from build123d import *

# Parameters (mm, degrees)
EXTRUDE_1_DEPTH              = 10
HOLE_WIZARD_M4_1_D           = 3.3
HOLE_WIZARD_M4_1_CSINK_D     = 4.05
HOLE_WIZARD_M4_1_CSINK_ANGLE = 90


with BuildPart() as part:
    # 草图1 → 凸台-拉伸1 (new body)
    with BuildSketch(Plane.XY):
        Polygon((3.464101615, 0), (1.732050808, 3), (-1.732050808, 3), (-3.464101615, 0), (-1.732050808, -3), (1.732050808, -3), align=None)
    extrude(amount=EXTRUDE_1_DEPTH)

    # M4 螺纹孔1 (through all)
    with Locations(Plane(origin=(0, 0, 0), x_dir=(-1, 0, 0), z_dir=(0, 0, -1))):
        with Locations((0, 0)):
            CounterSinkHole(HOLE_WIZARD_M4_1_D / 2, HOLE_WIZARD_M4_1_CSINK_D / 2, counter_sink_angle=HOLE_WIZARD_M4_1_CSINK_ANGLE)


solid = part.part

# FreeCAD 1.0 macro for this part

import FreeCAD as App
import Part
import Sketcher
from FreeCAD import Vector
Q = App.Units.Quantity

doc = App.newDocument("Part")
params = doc.addObject("Spreadsheet::Sheet", "Params")
for row, (alias, value) in enumerate([
    ("pad1_length", "10 mm"),
    ("sketch2_diameter", "3.3 mm"),
    ("hole_diameter", "3.3 mm"),
    ("hole_csink_diameter", "4.05 mm"),
], start=1):
    params.set(f"A{row}", alias)
    params.set(f"B{row}", "=" + value)
    params.setAlias(f"B{row}", alias)

body = doc.addObject("PartDesign::Body", "Body")

sketch1 = body.newObject("Sketcher::SketchObject", "Sketch")
sketch1.AttachmentSupport = (doc.getObject("XY_Plane"), [""])
sketch1.MapMode = "FlatFace"
sketch1.addGeometry(Part.LineSegment(Vector(3.5, 0, 0), Vector(1.7, 3, 0)), False)
sketch1.addGeometry(Part.LineSegment(Vector(1.7, 3, 0), Vector(-1.7, 3, 0)), False)
sketch1.addGeometry(Part.LineSegment(Vector(-1.7, 3, 0), Vector(-3.5, 0, 0)), False)
sketch1.addGeometry(Part.LineSegment(Vector(-3.5, 0, 0), Vector(-1.7, -3, 0)), False)
sketch1.addGeometry(Part.LineSegment(Vector(-1.7, -3, 0), Vector(1.7, -3, 0)), False)
sketch1.addGeometry(Part.LineSegment(Vector(1.7, -3, 0), Vector(3.5, 0, 0)), False)
sketch1.addConstraint(Sketcher.Constraint("Coincident", 0, 2, 1, 1))
sketch1.addConstraint(Sketcher.Constraint("Coincident", 1, 2, 2, 1))
sketch1.addConstraint(Sketcher.Constraint("Coincident", 2, 2, 3, 1))
sketch1.addConstraint(Sketcher.Constraint("Coincident", 3, 2, 4, 1))
sketch1.addConstraint(Sketcher.Constraint("Coincident", 4, 2, 5, 1))
sketch1.addConstraint(Sketcher.Constraint("Coincident", 5, 2, 0, 1))
sketch1.addConstraint(Sketcher.Constraint("Horizontal", 1))
sketch1.addConstraint(Sketcher.Constraint("Horizontal", 4))
sketch1.addConstraint(Sketcher.Constraint("Symmetric", 0, 2, 3, 2, -1, 1))
sketch1.addConstraint(Sketcher.Constraint("Symmetric", 2, 2, 5, 2, -1, 1))
sketch1.addConstraint(Sketcher.Constraint("PointOnObject", 2, 2, -1))
sketch1.addConstraint(Sketcher.Constraint("Parallel", 2, 5))
sketch1.addConstraint(Sketcher.Constraint("Vertical", 1, 2, 3, 2))
sketch1.addConstraint(Sketcher.Constraint("Angle", 0, Q("120 deg")))
sketch1.addConstraint(Sketcher.Constraint("DistanceY", -1, 1, 0, 2, Q("3 mm")))
sketch1.addConstraint(Sketcher.Constraint("DistanceX", 1, 2, 1, 1, Q("3.464102 mm")))
pad1 = body.newObject("PartDesign::Pad", "Pad")
pad1.Profile = sketch1
pad1.setExpression("Length", "Params.pad1_length")

sketch2 = body.newObject("Sketcher::SketchObject", "Sketch001")
sketch2.AttachmentSupport = (doc.getObject("XY_Plane"), [""])
sketch2.MapMode = "FlatFace"
sketch2.addGeometry(Part.Circle(Vector(0, 0, 0), Vector(0, 0, 1), 1.6), False)
sketch2.addConstraint(Sketcher.Constraint("Coincident", 0, 3, -1, 1))
sketch2.addConstraint(Sketcher.Constraint("Diameter", 0, Q("3.3 mm")))
sketch2.setExpression("Constraints[1]", "Params.sketch2_diameter")
doc.recompute()
hole = body.newObject("PartDesign::Hole", "Hole")
hole.Profile = sketch2
hole.ThreadType = "None"
hole.setExpression("Diameter", "Params.hole_diameter")
hole.DepthType = "ThroughAll"
hole.HoleCutType = "Countersink"
hole.setExpression("HoleCutDiameter", "Params.hole_csink_diameter")
hole.HoleCutCountersinkAngle = 90
hole.Reversed = True

doc.recompute()
